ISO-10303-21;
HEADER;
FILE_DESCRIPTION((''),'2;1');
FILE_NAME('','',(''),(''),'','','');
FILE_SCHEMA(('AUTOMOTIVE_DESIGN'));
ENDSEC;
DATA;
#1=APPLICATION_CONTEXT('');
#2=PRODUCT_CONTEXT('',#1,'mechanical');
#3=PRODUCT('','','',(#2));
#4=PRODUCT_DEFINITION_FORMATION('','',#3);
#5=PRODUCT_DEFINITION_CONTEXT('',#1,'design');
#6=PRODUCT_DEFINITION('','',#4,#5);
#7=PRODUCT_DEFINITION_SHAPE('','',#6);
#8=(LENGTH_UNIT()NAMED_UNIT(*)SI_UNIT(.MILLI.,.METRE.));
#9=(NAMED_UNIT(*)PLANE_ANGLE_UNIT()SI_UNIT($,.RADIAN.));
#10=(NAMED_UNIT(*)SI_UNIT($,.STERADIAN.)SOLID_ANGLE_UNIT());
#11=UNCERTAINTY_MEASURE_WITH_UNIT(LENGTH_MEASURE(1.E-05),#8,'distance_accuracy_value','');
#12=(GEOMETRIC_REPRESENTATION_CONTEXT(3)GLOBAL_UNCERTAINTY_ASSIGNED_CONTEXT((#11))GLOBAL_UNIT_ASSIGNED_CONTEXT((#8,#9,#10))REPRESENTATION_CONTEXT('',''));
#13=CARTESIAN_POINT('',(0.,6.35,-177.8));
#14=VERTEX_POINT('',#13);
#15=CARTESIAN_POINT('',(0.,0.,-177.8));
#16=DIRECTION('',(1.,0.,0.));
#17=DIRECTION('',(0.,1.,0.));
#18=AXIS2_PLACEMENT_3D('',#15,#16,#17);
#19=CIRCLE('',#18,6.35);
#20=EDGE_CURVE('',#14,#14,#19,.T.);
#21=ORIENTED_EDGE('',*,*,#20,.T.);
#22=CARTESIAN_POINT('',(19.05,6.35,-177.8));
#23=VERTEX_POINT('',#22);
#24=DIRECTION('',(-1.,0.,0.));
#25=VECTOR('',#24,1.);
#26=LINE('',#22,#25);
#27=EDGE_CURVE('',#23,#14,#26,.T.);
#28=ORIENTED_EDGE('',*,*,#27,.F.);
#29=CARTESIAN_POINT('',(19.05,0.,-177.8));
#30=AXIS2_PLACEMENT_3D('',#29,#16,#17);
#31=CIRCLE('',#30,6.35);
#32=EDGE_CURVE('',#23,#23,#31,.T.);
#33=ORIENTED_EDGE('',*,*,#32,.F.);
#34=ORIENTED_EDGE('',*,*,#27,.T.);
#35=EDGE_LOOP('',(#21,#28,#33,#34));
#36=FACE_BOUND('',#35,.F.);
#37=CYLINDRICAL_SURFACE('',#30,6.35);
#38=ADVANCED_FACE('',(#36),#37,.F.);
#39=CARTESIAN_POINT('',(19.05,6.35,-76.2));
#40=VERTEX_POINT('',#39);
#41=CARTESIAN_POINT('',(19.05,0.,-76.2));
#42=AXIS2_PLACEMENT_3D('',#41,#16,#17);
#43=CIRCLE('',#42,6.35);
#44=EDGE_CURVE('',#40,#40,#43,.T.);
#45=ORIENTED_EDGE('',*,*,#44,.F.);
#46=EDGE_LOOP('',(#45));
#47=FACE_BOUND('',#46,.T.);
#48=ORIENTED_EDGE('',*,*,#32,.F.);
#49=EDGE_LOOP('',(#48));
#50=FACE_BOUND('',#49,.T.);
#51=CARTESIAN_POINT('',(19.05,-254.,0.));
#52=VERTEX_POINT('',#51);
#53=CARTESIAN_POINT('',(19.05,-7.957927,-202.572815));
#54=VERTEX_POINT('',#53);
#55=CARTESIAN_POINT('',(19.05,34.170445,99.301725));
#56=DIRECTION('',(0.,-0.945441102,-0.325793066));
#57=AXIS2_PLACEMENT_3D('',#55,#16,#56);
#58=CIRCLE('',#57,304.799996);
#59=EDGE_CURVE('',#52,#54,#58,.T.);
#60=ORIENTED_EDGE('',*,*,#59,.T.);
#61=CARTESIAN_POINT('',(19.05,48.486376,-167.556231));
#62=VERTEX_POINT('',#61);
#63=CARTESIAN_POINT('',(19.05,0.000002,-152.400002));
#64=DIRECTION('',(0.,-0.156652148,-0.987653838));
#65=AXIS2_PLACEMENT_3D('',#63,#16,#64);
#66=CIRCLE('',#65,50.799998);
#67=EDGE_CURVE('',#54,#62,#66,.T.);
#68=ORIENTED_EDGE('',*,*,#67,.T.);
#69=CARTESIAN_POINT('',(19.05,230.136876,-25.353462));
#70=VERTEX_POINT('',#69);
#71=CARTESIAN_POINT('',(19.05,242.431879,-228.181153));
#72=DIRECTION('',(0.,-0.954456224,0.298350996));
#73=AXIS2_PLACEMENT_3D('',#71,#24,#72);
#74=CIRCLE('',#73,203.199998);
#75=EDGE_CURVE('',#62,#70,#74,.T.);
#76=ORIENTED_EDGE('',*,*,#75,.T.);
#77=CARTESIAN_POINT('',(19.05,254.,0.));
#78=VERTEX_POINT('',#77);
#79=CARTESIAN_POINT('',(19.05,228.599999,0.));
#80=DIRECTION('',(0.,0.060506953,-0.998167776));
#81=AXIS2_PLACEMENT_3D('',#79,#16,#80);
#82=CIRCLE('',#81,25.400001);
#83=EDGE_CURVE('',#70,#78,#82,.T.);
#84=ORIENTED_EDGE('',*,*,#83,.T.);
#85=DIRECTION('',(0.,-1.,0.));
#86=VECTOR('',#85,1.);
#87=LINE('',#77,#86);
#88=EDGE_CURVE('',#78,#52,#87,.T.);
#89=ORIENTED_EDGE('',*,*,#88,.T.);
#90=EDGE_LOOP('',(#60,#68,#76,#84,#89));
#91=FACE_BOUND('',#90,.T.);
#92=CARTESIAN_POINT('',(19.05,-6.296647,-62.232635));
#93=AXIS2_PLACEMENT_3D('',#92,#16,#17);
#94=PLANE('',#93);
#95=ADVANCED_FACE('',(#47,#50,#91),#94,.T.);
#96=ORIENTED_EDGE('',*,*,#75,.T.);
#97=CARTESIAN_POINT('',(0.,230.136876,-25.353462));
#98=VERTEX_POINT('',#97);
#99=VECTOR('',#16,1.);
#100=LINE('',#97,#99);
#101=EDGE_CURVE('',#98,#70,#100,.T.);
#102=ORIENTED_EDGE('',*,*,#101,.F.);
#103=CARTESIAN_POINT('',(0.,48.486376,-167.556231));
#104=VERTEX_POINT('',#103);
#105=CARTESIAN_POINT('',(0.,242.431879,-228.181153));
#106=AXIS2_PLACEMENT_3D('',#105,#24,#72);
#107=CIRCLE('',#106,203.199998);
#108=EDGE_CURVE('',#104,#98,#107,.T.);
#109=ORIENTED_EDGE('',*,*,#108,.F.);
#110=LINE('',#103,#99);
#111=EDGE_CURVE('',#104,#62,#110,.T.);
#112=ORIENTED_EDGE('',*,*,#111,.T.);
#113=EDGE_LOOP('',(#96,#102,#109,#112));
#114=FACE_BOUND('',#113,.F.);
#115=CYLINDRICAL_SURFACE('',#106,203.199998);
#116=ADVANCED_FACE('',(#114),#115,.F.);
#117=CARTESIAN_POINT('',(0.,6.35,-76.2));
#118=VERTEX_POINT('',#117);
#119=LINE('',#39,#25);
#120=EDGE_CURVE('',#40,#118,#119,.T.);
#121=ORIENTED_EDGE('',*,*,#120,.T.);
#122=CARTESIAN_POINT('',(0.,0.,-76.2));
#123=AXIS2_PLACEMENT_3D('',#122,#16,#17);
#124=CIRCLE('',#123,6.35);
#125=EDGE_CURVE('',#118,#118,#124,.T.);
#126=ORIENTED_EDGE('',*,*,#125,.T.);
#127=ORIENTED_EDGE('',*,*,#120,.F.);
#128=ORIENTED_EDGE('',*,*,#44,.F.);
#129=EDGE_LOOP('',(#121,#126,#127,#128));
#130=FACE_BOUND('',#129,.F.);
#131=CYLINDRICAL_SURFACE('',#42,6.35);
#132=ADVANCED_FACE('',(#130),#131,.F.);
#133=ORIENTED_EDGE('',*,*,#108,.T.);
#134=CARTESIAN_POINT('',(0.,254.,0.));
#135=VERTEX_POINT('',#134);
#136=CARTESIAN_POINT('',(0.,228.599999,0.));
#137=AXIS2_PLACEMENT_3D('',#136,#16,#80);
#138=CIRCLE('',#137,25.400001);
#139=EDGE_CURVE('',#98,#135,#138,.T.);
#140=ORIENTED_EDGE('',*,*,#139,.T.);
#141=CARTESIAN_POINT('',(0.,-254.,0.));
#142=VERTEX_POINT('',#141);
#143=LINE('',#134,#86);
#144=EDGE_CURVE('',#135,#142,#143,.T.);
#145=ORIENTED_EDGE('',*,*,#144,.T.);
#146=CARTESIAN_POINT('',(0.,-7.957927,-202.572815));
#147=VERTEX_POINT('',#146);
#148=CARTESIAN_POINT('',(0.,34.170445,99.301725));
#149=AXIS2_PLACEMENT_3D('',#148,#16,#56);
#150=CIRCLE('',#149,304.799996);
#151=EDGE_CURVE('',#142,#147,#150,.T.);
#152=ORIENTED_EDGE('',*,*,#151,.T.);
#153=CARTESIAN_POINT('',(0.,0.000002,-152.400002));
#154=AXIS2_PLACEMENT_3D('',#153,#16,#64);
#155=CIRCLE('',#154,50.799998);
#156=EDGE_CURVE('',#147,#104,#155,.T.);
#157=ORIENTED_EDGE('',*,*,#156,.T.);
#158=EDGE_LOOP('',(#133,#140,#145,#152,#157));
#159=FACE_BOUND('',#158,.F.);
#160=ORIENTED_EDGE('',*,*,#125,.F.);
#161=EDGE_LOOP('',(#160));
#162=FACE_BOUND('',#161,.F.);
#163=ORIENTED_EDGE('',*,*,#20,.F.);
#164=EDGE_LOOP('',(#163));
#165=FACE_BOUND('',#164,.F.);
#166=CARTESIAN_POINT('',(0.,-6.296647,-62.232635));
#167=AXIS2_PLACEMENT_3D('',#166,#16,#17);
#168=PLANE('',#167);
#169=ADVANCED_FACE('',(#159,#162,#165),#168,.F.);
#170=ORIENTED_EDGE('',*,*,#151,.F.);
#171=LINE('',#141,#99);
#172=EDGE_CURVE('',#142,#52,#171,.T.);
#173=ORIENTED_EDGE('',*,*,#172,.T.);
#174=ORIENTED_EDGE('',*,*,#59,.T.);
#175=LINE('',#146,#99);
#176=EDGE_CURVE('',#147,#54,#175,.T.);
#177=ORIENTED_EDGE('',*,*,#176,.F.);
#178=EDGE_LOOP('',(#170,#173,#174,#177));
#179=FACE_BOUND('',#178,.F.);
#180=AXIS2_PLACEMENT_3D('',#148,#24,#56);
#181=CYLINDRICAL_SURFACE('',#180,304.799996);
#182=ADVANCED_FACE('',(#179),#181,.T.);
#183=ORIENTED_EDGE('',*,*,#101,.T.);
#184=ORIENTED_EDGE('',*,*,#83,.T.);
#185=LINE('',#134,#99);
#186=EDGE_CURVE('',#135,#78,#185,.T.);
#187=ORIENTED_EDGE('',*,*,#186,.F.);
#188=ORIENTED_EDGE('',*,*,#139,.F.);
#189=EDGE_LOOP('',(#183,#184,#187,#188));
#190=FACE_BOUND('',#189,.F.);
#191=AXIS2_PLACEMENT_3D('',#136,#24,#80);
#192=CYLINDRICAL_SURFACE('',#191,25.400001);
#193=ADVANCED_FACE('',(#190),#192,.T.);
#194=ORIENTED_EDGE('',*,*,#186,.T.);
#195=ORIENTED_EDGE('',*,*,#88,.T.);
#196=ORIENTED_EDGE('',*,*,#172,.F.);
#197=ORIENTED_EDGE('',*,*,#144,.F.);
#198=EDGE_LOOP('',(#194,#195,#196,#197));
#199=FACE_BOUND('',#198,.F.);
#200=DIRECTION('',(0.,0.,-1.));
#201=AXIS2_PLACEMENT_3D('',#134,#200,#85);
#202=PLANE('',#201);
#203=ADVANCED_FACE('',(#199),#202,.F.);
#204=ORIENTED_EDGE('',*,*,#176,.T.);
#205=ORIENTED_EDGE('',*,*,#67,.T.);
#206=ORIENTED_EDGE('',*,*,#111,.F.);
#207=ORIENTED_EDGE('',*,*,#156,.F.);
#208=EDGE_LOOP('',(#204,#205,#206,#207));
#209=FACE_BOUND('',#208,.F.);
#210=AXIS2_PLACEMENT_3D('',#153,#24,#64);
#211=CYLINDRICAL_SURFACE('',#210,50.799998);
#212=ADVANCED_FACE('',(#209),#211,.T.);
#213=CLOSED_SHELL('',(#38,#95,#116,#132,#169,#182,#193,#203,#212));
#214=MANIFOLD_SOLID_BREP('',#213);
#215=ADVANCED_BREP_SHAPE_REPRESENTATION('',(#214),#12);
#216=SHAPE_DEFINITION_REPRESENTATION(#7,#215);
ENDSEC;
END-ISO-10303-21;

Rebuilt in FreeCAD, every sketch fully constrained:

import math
import FreeCAD as App
import Part
import Sketcher
Q = App.Units.Quantity

doc = App.newDocument("Part")
body = doc.addObject("PartDesign::Body", "Body")

sketch1 = body.newObject("Sketcher::SketchObject", "Sketch")
sketch1.AttachmentSupport = (doc.getObject("YZ_Plane"), [""])
sketch1.MapMode = "FlatFace"
sketch1.addGeometry([
    Part.ArcOfCircle(Part.Circle(App.Vector(34, 99, 0), App.Vector(0, 0, 1), 305), math.radians(-161), math.radians(-98)),
    Part.ArcOfCircle(Part.Circle(App.Vector(0, -152, 0), App.Vector(0, 0, 1), 51), math.radians(-99), math.radians(-17)),
    Part.ArcOfCircle(Part.Circle(App.Vector(242, -228, 0), App.Vector(0, 0, 1), 203), math.radians(93), math.radians(163)),
    Part.ArcOfCircle(Part.Circle(App.Vector(229, 0, 0), App.Vector(0, 0, 1), 25), math.radians(-87), math.radians(0)),
    Part.LineSegment(App.Vector(254, 0, 0), App.Vector(-254, 0, 0)),
], False)
sketch1.addConstraint([
    Sketcher.Constraint("Coincident", 0, 2, 1, 1),
    Sketcher.Constraint("Tangent", 1, 2, 2, 2),
    Sketcher.Constraint("Tangent", 2, 1, 3, 1),
    Sketcher.Constraint("Coincident", 3, 2, 4, 1),
    Sketcher.Constraint("Coincident", 4, 2, 0, 1),
    Sketcher.Constraint("Horizontal", 4),
    Sketcher.Constraint("Symmetric", 3, 2, 4, 2, -1, 1),
    Sketcher.Constraint("PointOnObject", 1, 3, -2),
    Sketcher.Constraint("PointOnObject", 3, 3, -1),
    Sketcher.Constraint("Radius", 0, Q("11.9999999 in")),
    Sketcher.Constraint("Radius", 1, Q("1.9999999 in")),
    Sketcher.Constraint("Radius", 2, Q("7.9999999 in")),
    Sketcher.Constraint("Radius", 3, Q("1 in")),
    Sketcher.Constraint("DistanceX", 4, 2, 4, 1, Q("20 in")),
    Sketcher.Constraint("DistanceY", 1, 3, -1, 1, Q("6.0000001 in")),
    Sketcher.Constraint("DistanceY", 2, 3, 0, 3, 327.482878),
])
pad1 = body.newObject("PartDesign::Pad", "Pad")
pad1.Profile = sketch1
pad1.Length = Q("0.75 in")

sketch2 = body.newObject("Sketcher::SketchObject", "Sketch001")
sketch2.AttachmentSupport = (doc.getObject("YZ_Plane"), [""])
sketch2.MapMode = "FlatFace"
sketch2.AttachmentOffset = App.Placement(App.Vector(0, 0, 0.75 * 25.4), App.Rotation())
sketch2.addGeometry([
    Part.Circle(App.Vector(0, -178, 0), App.Vector(0, 0, 1), 6),
    Part.Circle(App.Vector(0, -76, 0), App.Vector(0, 0, 1), 6),
], False)
sketch2.addConstraint([
    Sketcher.Constraint("Equal", 0, 1),
    Sketcher.Constraint("PointOnObject", 0, 3, -2),
    Sketcher.Constraint("PointOnObject", 1, 3, -2),
    Sketcher.Constraint("Diameter", 0, Q("0.5 in")),
    Sketcher.Constraint("DistanceY", 0, 3, -1, 1, Q("7 in")),
    Sketcher.Constraint("DistanceY", 1, 3, -1, 1, Q("3 in")),
])
pocket1 = body.newObject("PartDesign::Pocket", "Pocket")
pocket1.Profile = sketch2
pocket1.Type = "ThroughAll"

doc.recompute()
